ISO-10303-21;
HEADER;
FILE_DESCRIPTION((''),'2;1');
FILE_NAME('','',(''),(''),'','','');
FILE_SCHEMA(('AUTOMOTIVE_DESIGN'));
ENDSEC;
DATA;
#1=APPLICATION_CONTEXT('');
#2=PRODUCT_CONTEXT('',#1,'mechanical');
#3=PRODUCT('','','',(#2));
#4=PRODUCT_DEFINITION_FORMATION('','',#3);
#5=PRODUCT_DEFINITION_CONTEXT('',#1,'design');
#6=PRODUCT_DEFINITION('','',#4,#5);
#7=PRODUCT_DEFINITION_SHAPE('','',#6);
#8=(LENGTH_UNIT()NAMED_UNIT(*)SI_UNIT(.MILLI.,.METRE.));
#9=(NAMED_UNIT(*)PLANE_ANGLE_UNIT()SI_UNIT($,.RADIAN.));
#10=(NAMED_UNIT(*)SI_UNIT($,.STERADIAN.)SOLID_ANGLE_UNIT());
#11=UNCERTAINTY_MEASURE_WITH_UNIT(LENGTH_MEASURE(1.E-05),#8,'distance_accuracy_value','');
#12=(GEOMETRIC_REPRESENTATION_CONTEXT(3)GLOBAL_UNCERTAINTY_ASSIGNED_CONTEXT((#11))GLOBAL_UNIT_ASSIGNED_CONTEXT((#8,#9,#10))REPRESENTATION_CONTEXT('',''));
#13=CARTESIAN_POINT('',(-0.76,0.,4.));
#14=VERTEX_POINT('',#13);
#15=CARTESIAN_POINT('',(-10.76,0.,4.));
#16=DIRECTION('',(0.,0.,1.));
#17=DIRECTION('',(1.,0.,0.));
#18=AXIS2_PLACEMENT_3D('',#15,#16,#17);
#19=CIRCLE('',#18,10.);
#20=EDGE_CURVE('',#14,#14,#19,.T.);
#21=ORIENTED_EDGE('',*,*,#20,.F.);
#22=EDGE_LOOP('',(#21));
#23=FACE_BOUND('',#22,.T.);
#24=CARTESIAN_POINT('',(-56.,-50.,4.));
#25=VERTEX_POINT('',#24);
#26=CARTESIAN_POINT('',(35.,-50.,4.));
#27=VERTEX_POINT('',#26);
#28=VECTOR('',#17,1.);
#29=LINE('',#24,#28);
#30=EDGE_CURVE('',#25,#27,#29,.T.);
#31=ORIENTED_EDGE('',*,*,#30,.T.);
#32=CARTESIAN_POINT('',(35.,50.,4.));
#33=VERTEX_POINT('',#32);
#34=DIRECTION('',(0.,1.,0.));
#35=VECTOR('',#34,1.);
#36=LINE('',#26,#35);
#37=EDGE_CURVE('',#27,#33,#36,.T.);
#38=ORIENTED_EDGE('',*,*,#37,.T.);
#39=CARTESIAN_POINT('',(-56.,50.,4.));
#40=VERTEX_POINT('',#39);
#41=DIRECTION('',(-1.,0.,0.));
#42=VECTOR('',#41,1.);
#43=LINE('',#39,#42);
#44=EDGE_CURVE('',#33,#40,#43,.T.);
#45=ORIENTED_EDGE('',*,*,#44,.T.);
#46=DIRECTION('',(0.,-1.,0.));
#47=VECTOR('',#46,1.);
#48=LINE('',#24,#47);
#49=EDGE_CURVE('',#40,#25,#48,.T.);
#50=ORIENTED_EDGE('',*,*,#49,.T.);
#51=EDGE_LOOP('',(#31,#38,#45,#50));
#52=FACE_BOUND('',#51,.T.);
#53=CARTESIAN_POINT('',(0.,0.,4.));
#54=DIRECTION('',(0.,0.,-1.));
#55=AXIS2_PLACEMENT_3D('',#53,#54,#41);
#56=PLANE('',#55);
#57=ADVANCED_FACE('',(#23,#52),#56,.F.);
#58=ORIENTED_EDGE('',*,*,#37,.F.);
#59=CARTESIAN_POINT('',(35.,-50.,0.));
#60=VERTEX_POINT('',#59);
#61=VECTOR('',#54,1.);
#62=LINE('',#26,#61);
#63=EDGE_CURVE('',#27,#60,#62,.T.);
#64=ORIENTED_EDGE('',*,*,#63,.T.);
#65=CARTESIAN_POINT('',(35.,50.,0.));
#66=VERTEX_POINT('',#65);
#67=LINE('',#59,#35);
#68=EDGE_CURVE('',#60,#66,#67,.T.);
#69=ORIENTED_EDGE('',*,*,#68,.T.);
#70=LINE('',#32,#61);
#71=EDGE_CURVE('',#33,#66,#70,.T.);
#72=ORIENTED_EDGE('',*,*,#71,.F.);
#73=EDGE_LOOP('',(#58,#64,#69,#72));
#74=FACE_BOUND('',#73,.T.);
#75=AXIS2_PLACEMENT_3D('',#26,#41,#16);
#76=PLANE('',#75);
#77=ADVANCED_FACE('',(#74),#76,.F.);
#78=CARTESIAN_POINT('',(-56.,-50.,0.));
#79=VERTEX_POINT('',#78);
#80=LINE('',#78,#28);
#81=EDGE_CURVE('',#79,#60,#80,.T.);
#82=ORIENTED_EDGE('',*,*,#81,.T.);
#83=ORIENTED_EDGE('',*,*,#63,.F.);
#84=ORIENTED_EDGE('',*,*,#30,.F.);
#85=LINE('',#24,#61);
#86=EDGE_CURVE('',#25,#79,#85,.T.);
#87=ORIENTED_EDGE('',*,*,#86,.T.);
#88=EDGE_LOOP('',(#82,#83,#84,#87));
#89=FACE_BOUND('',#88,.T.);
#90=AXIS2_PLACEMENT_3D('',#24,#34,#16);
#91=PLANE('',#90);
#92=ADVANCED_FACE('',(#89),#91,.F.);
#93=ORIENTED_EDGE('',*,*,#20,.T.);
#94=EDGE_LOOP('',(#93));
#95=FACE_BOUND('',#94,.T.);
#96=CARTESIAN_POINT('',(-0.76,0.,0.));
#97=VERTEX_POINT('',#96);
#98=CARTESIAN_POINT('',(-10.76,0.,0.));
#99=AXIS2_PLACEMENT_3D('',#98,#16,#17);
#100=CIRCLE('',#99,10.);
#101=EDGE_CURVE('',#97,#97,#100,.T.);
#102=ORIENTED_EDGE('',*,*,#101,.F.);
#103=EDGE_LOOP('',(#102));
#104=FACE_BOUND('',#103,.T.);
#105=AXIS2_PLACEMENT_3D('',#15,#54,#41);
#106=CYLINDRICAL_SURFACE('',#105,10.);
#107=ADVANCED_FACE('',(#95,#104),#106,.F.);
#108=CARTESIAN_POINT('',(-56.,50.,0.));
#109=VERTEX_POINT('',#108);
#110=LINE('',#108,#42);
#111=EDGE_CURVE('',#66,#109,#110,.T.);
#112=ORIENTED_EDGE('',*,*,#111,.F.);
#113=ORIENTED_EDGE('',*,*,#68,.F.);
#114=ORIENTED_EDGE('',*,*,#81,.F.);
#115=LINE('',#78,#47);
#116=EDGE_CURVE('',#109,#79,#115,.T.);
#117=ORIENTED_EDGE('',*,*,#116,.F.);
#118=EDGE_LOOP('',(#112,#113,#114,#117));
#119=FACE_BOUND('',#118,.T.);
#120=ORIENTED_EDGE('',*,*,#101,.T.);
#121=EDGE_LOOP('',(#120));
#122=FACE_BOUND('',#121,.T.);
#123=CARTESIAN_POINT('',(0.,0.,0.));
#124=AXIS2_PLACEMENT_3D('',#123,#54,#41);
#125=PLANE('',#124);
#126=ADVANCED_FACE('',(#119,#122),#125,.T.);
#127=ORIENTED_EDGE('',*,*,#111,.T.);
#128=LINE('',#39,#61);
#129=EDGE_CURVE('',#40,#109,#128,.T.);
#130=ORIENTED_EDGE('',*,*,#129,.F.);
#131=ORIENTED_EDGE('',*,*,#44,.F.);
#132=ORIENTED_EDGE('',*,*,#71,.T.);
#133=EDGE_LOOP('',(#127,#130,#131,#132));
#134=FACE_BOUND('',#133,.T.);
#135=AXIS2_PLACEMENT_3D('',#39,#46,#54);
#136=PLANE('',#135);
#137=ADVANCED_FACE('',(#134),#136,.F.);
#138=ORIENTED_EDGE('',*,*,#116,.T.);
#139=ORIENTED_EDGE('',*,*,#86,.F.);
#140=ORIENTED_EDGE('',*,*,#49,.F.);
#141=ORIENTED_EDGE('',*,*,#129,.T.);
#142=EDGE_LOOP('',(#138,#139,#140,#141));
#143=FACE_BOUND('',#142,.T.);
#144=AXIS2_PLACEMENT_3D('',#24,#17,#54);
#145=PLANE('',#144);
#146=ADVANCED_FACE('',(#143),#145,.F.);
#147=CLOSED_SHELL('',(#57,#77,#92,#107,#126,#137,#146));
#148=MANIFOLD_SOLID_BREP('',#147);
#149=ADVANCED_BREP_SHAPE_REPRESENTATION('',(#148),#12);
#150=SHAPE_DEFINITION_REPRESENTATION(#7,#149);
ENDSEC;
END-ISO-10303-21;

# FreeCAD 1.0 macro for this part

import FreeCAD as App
import Part
import Sketcher

V = App.Vector
Q = App.Units.Quantity


def add_polygon(sketch, points):
    """Adds a closed chain of lines whose ends are joined by coincident constraints."""
    first, n = sketch.GeometryCount, len(points)
    for a, b in zip(points, points[1:] + points[:1]):
        sketch.addGeometry(Part.LineSegment(App.Vector(*a, 0), App.Vector(*b, 0)), False)
    for i in range(n):
        sketch.addConstraint(Sketcher.Constraint("Coincident", first + i, 2, first + (i + 1) % n, 1))

doc = App.newDocument("Part")
body = doc.addObject("PartDesign::Body", "Body")

sketch1 = body.newObject("Sketcher::SketchObject", "Sketch")
sketch1.AttachmentSupport = (doc.getObject("XY_Plane"), [""])
sketch1.MapMode = "FlatFace"
add_polygon(sketch1, [(-56, 50), (-56, -50), (35, -50), (35, 50)])
sketch1.addGeometry(Part.Circle(V(-11, 0, 0), V(0, 0, 1), 10), False)
sketch1.addConstraint([
    Sketcher.Constraint("Vertical", 0),
    Sketcher.Constraint("Horizontal", 1),
    Sketcher.Constraint("Vertical", 2),
    Sketcher.Constraint("Horizontal", 3),
    Sketcher.Constraint("PointOnObject", 4, 3, -1),
    Sketcher.Constraint("Diameter", 4, Q("20 mm")),
    Sketcher.Constraint("DistanceX", 1, 1, 1, 2, Q("91 mm")),
    Sketcher.Constraint("DistanceY", 0, 2, 0, 1, Q("100 mm")),
    Sketcher.Constraint("DistanceX", 0, 2, -1, 1, Q("56 mm")),
    Sketcher.Constraint("DistanceY", 0, 2, -1, 1, Q("50 mm")),
    Sketcher.Constraint("DistanceX", 4, 3, -1, 1, Q("10.76 mm")),
])
pad1 = body.newObject("PartDesign::Pad", "Pad")
pad1.Profile = sketch1
pad1.Length = 4

doc.recompute()
